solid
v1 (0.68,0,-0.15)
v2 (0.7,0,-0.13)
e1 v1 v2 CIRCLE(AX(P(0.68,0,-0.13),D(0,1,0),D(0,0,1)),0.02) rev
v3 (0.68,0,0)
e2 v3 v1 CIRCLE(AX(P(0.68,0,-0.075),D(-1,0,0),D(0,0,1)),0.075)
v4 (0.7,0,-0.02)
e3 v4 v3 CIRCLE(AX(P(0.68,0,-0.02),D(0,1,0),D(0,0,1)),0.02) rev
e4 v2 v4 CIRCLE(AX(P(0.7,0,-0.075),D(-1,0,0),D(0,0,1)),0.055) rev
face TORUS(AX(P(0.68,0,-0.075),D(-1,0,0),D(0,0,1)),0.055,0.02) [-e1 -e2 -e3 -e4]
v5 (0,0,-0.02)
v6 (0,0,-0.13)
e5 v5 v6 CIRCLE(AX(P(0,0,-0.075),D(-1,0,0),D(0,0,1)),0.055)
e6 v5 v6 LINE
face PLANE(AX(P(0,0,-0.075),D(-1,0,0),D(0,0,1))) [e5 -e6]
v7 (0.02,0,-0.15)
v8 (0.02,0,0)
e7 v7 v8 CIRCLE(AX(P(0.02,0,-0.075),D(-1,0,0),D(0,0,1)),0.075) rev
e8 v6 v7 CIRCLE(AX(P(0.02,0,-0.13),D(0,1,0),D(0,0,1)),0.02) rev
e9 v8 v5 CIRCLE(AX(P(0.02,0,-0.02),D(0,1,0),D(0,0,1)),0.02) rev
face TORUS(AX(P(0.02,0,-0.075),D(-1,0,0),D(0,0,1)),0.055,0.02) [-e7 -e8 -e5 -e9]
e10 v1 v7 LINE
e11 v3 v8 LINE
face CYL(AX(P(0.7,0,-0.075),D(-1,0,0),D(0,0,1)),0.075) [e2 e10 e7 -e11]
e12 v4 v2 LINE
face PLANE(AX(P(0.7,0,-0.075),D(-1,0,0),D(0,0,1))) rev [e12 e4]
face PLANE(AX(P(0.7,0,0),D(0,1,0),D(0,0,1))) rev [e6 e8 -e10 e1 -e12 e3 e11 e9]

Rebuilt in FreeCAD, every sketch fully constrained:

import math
import FreeCAD as App
import Part
import Sketcher
from FreeCAD import Vector


def edges_at(feature, points):
    """Names of the edges that pass closest to the given points."""
    edges = feature.Shape.Edges
    near = lambda p: min(range(len(edges)), key=lambda i: edges[i].distToShape(Part.Vertex(*p))[0])
    return sorted({f"Edge{near(p) + 1}" for p in points})

doc = App.newDocument("Part")
body = doc.addObject("PartDesign::Body", "Body")

sketch1 = doc.addObject("Sketcher::SketchObject", "Sketch")
body.addObject(sketch1)
sketch1.AttachmentSupport = (doc.YZ_Plane, [""])
sketch1.MapMode = "FlatFace"
sketch1.addGeometry(Part.LineSegment(Vector(0, 0, 0), Vector(0, -0.15, 0)), False)
sketch1.addGeometry(Part.ArcOfCircle(Part.Circle(Vector(0, -0.07, 0), Vector(0, 0, 1), 0.07), math.radians(-90), math.radians(90)), False)
sketch1.addConstraint(Sketcher.Constraint("Coincident", 0, 1, 1, 2))
sketch1.addConstraint(Sketcher.Constraint("Coincident", 1, 1, 0, 2))
sketch1.addConstraint(Sketcher.Constraint("Vertical", 0))
sketch1.addConstraint(Sketcher.Constraint("Coincident", 0, 1, -1, 1))
sketch1.addConstraint(Sketcher.Constraint("PointOnObject", 1, 3, -2))
sketch1.addConstraint(Sketcher.Constraint("Radius", 1, 0.075))
pad1 = doc.addObject("PartDesign::Pad", "Pad")
body.addObject(pad1)
pad1.Profile = sketch1
pad1.Length = 0.7
doc.recompute()

fillet = doc.addObject("PartDesign::Fillet", "Fillet")
body.addObject(fillet)
fillet.Base = (pad1, edges_at(pad1, [(0, 0.075, -0.075), (0.7, 0.075, -0.075)]))
fillet.Radius = 0.02

doc.recompute()
